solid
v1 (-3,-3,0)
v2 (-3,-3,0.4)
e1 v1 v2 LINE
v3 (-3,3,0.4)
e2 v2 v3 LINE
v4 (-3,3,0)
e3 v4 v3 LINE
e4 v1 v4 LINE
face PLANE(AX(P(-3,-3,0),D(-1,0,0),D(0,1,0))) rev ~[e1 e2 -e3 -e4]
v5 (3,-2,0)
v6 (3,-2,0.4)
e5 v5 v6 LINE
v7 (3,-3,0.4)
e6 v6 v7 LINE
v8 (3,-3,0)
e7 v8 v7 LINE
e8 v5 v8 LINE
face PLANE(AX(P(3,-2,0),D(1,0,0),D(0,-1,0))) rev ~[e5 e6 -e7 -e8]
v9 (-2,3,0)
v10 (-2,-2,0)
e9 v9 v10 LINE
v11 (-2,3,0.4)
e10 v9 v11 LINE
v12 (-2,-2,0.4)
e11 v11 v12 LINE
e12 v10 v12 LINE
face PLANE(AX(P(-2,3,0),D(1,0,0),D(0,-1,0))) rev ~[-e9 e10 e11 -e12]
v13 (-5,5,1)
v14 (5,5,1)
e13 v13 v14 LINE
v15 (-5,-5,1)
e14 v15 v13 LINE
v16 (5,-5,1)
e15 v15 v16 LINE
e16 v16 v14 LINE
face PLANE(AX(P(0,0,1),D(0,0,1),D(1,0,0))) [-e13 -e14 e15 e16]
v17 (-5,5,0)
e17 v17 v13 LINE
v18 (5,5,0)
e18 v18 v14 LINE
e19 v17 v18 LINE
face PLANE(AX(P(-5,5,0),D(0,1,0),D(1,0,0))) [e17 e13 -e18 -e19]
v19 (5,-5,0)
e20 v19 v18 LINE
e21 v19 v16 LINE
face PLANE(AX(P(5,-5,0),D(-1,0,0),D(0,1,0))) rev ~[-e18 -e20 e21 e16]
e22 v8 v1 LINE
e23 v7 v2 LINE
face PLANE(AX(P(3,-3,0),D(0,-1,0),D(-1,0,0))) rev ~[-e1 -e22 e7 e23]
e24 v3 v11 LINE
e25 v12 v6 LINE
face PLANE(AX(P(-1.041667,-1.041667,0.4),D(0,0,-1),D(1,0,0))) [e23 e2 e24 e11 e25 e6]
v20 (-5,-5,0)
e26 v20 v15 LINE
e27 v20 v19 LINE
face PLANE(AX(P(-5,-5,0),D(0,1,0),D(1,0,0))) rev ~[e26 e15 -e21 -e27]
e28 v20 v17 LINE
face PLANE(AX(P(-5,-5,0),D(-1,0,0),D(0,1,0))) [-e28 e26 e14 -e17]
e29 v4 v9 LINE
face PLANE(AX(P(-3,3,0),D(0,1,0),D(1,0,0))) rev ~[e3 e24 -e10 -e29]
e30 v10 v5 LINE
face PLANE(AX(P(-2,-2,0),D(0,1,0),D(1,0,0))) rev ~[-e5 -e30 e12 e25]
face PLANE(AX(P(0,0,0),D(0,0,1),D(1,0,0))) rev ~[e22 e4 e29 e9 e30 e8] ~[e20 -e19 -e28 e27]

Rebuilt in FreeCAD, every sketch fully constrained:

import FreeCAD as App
import Part
import Sketcher

V = App.Vector
Q = App.Units.Quantity


def add_polygon(sketch, points):
    """Adds a closed chain of lines whose ends are joined by coincident constraints."""
    first, n = sketch.GeometryCount, len(points)
    for a, b in zip(points, points[1:] + points[:1]):
        sketch.addGeometry(Part.LineSegment(App.Vector(*a, 0), App.Vector(*b, 0)), False)
    for i in range(n):
        sketch.addConstraint(Sketcher.Constraint("Coincident", first + i, 2, first + (i + 1) % n, 1))

doc = App.newDocument("Part")
body = doc.addObject("PartDesign::Body", "Body")

sketch1 = body.newObject("Sketcher::SketchObject", "Sketch")
sketch1.AttachmentSupport = (doc.getObject("XY_Plane"), [""])
sketch1.MapMode = "FlatFace"
add_polygon(sketch1, [(-5, 5), (-5, -5), (5, -5), (5, 5)])
sketch1.addConstraint([
    Sketcher.Constraint("Vertical", 0),
    Sketcher.Constraint("Horizontal", 1),
    Sketcher.Constraint("Vertical", 2),
    Sketcher.Constraint("Horizontal", 3),
    Sketcher.Constraint("Symmetric", 0, 2, 2, 2, -1, 1),
    Sketcher.Constraint("Equal", 3, 0),
    Sketcher.Constraint("DistanceX", 1, 1, 1, 2, Q("10 mm")),
])
pad1 = body.newObject("PartDesign::Pad", "Pad")
pad1.Profile = sketch1
pad1.Length = 1

sketch2 = body.newObject("Sketcher::SketchObject", "Sketch001")
sketch2.AttachmentSupport = (doc.getObject("XY_Plane"), [""])
sketch2.MapMode = "FlatFace"
add_polygon(sketch2, [(3, -2), (3, -3), (-3, -3), (-3, 3), (-2, 3), (-2, -2)])
sketch2.addConstraint([
    Sketcher.Constraint("Vertical", 0),
    Sketcher.Constraint("Horizontal", 1),
    Sketcher.Constraint("Vertical", 2),
    Sketcher.Constraint("Horizontal", 3),
    Sketcher.Constraint("Vertical", 4),
    Sketcher.Constraint("Horizontal", 5),
    Sketcher.Constraint("Symmetric", 0, 2, 2, 2, -1, 1),
    Sketcher.Constraint("Equal", 3, 0),
    Sketcher.Constraint("Equal", 1, 2),
    Sketcher.Constraint("DistanceX", 1, 2, 1, 1, Q("6 mm")),
    Sketcher.Constraint("DistanceX", 3, 1, 3, 2, Q("1 mm")),
])
pocket1 = body.newObject("PartDesign::Pocket", "Pocket")
pocket1.Profile = sketch2
pocket1.Length = 0.4
pocket1.Reversed = True

doc.recompute()
